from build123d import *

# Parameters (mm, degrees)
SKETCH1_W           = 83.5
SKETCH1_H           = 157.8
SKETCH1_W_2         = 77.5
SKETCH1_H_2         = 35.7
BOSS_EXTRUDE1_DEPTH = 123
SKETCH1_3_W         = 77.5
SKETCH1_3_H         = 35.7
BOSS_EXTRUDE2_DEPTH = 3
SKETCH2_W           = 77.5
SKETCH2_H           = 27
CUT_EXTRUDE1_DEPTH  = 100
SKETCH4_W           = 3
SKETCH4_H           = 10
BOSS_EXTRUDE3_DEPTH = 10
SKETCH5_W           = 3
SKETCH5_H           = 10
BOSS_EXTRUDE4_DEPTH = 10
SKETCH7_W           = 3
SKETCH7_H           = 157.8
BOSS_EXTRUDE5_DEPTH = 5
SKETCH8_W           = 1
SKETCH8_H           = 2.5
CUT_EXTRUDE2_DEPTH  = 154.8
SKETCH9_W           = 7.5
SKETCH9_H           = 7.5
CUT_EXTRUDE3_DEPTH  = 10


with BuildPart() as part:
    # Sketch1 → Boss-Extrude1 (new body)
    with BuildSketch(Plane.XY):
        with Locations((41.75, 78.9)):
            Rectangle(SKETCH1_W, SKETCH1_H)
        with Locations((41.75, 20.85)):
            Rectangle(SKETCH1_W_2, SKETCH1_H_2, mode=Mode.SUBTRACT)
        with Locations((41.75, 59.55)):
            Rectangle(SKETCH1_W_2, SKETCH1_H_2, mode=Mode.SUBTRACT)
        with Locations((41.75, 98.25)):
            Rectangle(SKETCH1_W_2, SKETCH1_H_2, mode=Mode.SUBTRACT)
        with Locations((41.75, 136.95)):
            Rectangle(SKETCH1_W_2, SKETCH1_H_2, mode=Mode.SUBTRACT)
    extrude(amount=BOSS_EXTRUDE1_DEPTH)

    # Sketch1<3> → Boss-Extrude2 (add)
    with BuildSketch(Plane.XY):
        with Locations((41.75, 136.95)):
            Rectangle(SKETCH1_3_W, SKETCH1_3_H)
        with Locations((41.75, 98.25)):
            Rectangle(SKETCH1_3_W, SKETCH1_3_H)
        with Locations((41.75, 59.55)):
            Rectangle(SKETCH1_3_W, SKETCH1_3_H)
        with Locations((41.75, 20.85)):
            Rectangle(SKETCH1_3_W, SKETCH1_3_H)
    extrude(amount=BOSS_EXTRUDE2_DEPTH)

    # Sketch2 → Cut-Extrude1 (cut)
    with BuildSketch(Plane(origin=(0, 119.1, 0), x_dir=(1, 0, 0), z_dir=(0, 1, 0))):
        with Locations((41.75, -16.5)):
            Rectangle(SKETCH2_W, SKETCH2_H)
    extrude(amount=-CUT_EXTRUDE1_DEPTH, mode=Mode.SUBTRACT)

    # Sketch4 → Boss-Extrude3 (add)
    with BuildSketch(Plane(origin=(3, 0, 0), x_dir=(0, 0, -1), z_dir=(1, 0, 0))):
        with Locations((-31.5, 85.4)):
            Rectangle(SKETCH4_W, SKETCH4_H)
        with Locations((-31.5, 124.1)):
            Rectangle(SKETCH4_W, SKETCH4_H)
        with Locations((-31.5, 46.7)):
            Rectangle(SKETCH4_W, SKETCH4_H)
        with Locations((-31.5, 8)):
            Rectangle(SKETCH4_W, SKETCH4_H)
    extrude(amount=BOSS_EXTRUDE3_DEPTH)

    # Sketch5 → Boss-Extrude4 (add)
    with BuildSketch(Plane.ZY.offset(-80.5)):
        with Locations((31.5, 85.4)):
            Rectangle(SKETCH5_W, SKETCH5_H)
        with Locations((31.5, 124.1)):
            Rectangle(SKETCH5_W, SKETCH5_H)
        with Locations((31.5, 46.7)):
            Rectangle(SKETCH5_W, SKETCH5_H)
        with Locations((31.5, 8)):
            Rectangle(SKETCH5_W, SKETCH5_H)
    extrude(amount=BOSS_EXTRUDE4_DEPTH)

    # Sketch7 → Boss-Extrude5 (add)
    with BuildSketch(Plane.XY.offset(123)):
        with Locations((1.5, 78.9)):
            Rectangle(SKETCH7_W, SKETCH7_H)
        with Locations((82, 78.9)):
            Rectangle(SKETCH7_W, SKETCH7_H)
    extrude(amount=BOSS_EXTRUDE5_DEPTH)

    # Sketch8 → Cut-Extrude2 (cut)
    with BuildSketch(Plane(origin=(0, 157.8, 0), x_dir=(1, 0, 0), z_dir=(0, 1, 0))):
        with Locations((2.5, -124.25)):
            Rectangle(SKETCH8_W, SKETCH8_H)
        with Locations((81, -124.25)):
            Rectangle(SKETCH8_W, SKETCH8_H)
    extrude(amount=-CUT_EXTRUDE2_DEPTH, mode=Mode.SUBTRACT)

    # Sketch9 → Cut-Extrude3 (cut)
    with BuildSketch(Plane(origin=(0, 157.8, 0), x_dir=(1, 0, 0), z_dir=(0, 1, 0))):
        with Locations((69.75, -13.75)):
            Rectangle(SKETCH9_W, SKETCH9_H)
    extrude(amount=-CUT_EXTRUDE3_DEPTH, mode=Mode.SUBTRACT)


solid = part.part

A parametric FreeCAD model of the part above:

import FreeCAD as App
import Part
import Sketcher
from FreeCAD import Vector
Q = App.Units.Quantity

doc = App.newDocument("Part")
body = doc.addObject("PartDesign::Body", "Body")

# Sketch on XY plane
sketch1 = doc.addObject("Sketcher::SketchObject", "Sketch")
body.addObject(sketch1)
sketch1.AttachmentSupport = (doc.XY_Plane, [""])
sketch1.MapMode = "FlatFace"
sketch1.addGeometry([
    Part.LineSegment(Vector(0, 158, 0), Vector(0, 0, 0)),  # 0
    Part.LineSegment(Vector(0, 0, 0), Vector(84, 0, 0)),  # 1
    Part.LineSegment(Vector(84, 0, 0), Vector(84, 158, 0)),  # 2
    Part.LineSegment(Vector(84, 158, 0), Vector(0, 158, 0)),  # 3
    Part.LineSegment(Vector(80, 3, 0), Vector(3, 3, 0)),  # 4
    Part.LineSegment(Vector(3, 3, 0), Vector(3, 39, 0)),  # 5
    Part.LineSegment(Vector(3, 39, 0), Vector(80, 39, 0)),  # 6
    Part.LineSegment(Vector(80, 39, 0), Vector(80, 3, 0)),  # 7
    Part.LineSegment(Vector(80, 42, 0), Vector(3, 42, 0)),  # 8
    Part.LineSegment(Vector(3, 42, 0), Vector(3, 77, 0)),  # 9
    Part.LineSegment(Vector(3, 77, 0), Vector(80, 77, 0)),  # 10
    Part.LineSegment(Vector(80, 77, 0), Vector(80, 42, 0)),  # 11
    Part.LineSegment(Vector(80, 80, 0), Vector(3, 80, 0)),  # 12
    Part.LineSegment(Vector(3, 80, 0), Vector(3, 116, 0)),  # 13
    Part.LineSegment(Vector(3, 116, 0), Vector(80, 116, 0)),  # 14
    Part.LineSegment(Vector(80, 116, 0), Vector(80, 80, 0)),  # 15
    Part.LineSegment(Vector(80, 119, 0), Vector(3, 119, 0)),  # 16
    Part.LineSegment(Vector(3, 119, 0), Vector(3, 155, 0)),  # 17
    Part.LineSegment(Vector(3, 155, 0), Vector(80, 155, 0)),  # 18
    Part.LineSegment(Vector(80, 155, 0), Vector(80, 119, 0)),  # 19
], False)
sketch1.addConstraint([
    Sketcher.Constraint("Coincident", 0, 2, 1, 1),
    Sketcher.Constraint("Coincident", 1, 2, 2, 1),
    Sketcher.Constraint("Coincident", 2, 2, 3, 1),
    Sketcher.Constraint("Coincident", 3, 2, 0, 1),
    Sketcher.Constraint("Coincident", 4, 2, 5, 1),
    Sketcher.Constraint("Coincident", 5, 2, 6, 1),
    Sketcher.Constraint("Coincident", 6, 2, 7, 1),
    Sketcher.Constraint("Coincident", 7, 2, 4, 1),
    Sketcher.Constraint("Coincident", 8, 2, 9, 1),
    Sketcher.Constraint("Coincident", 9, 2, 10, 1),
    Sketcher.Constraint("Coincident", 10, 2, 11, 1),
    Sketcher.Constraint("Coincident", 11, 2, 8, 1),
    Sketcher.Constraint("Coincident", 12, 2, 13, 1),
    Sketcher.Constraint("Coincident", 13, 2, 14, 1),
    Sketcher.Constraint("Coincident", 14, 2, 15, 1),
    Sketcher.Constraint("Coincident", 15, 2, 12, 1),
    Sketcher.Constraint("Coincident", 16, 2, 17, 1),
    Sketcher.Constraint("Coincident", 17, 2, 18, 1),
    Sketcher.Constraint("Coincident", 18, 2, 19, 1),
    Sketcher.Constraint("Coincident", 19, 2, 16, 1),
    Sketcher.Constraint("Vertical", 0),
    Sketcher.Constraint("Horizontal", 1),
    Sketcher.Constraint("Vertical", 2),
    Sketcher.Constraint("Horizontal", 3),
    Sketcher.Constraint("Horizontal", 4),
    Sketcher.Constraint("Vertical", 5),
    Sketcher.Constraint("Horizontal", 6),
    Sketcher.Constraint("Vertical", 7),
    Sketcher.Constraint("Horizontal", 8),
    Sketcher.Constraint("Vertical", 9),
    Sketcher.Constraint("Horizontal", 10),
    Sketcher.Constraint("Vertical", 11),
    Sketcher.Constraint("Horizontal", 12),
    Sketcher.Constraint("Vertical", 13),
    Sketcher.Constraint("Horizontal", 14),
    Sketcher.Constraint("Vertical", 15),
    Sketcher.Constraint("Horizontal", 16),
    Sketcher.Constraint("Vertical", 17),
    Sketcher.Constraint("Horizontal", 18),
    Sketcher.Constraint("Vertical", 19),
    Sketcher.Constraint("Coincident", 0, 2, -1, 1),
    Sketcher.Constraint("Vertical", 5, 2, 8, 2),
    Sketcher.Constraint("Vertical", 7, 2, 10, 2),
    Sketcher.Constraint("Vertical", 9, 2, 12, 2),
    Sketcher.Constraint("Vertical", 11, 2, 14, 2),
    Sketcher.Constraint("Vertical", 13, 2, 16, 2),
    Sketcher.Constraint("Vertical", 15, 2, 18, 2),
    Sketcher.Constraint("Equal", 7, 9),
    Sketcher.Constraint("Equal", 11, 13),
    Sketcher.Constraint("Equal", 15, 17),
    Sketcher.Constraint("DistanceX", 1, 1, 1, 2, Q("83.5 mm")),
    Sketcher.Constraint("DistanceX", 4, 2, 4, 1, Q("77.5 mm")),
    Sketcher.Constraint("DistanceY", 0, 2, 0, 1, Q("157.8 mm")),
    Sketcher.Constraint("DistanceY", 5, 1, 5, 2, Q("35.7 mm")),
    Sketcher.Constraint("DistanceX", -1, 1, 4, 2, Q("3 mm")),
    Sketcher.Constraint("DistanceY", -1, 1, 4, 2, Q("3 mm")),
    Sketcher.Constraint("DistanceY", 5, 2, 8, 2, Q("3 mm")),
    Sketcher.Constraint("DistanceY", 9, 2, 12, 2, Q("3 mm")),
    Sketcher.Constraint("DistanceY", 13, 2, 16, 2, Q("3 mm")),
])
pad1 = doc.addObject("PartDesign::Pad", "Pad")
body.addObject(pad1)
pad1.Profile = sketch1
pad1.Length = 123

# Sketch on XY plane
sketch2 = doc.addObject("Sketcher::SketchObject", "Sketch001")
body.addObject(sketch2)
sketch2.AttachmentSupport = (doc.XY_Plane, [""])
sketch2.MapMode = "FlatFace"
sketch2.addGeometry([
    Part.LineSegment(Vector(3, 155, 0), Vector(3, 119, 0)),  # 0
    Part.LineSegment(Vector(3, 119, 0), Vector(80, 119, 0)),  # 1
    Part.LineSegment(Vector(80, 119, 0), Vector(80, 155, 0)),  # 2
    Part.LineSegment(Vector(80, 155, 0), Vector(3, 155, 0)),  # 3
    Part.LineSegment(Vector(3, 116, 0), Vector(3, 80, 0)),  # 4
    Part.LineSegment(Vector(3, 80, 0), Vector(80, 80, 0)),  # 5
    Part.LineSegment(Vector(80, 80, 0), Vector(80, 116, 0)),  # 6
    Part.LineSegment(Vector(80, 116, 0), Vector(3, 116, 0)),  # 7
    Part.LineSegment(Vector(3, 77, 0), Vector(3, 42, 0)),  # 8
    Part.LineSegment(Vector(3, 42, 0), Vector(80, 42, 0)),  # 9
    Part.LineSegment(Vector(80, 42, 0), Vector(80, 77, 0)),  # 10
    Part.LineSegment(Vector(80, 77, 0), Vector(3, 77, 0)),  # 11
    Part.LineSegment(Vector(3, 39, 0), Vector(3, 3, 0)),  # 12
    Part.LineSegment(Vector(3, 3, 0), Vector(80, 3, 0)),  # 13
    Part.LineSegment(Vector(80, 3, 0), Vector(80, 39, 0)),  # 14
    Part.LineSegment(Vector(80, 39, 0), Vector(3, 39, 0)),  # 15
], False)
sketch2.addConstraint([
    Sketcher.Constraint("Coincident", 0, 2, 1, 1),
    Sketcher.Constraint("Coincident", 1, 2, 2, 1),
    Sketcher.Constraint("Coincident", 2, 2, 3, 1),
    Sketcher.Constraint("Coincident", 3, 2, 0, 1),
    Sketcher.Constraint("Coincident", 4, 2, 5, 1),
    Sketcher.Constraint("Coincident", 5, 2, 6, 1),
    Sketcher.Constraint("Coincident", 6, 2, 7, 1),
    Sketcher.Constraint("Coincident", 7, 2, 4, 1),
    Sketcher.Constraint("Coincident", 8, 2, 9, 1),
    Sketcher.Constraint("Coincident", 9, 2, 10, 1),
    Sketcher.Constraint("Coincident", 10, 2, 11, 1),
    Sketcher.Constraint("Coincident", 11, 2, 8, 1),
    Sketcher.Constraint("Coincident", 12, 2, 13, 1),
    Sketcher.Constraint("Coincident", 13, 2, 14, 1),
    Sketcher.Constraint("Coincident", 14, 2, 15, 1),
    Sketcher.Constraint("Coincident", 15, 2, 12, 1),
    Sketcher.Constraint("Vertical", 0),
    Sketcher.Constraint("Horizontal", 1),
    Sketcher.Constraint("Vertical", 2),
    Sketcher.Constraint("Horizontal", 3),
    Sketcher.Constraint("Vertical", 4),
    Sketcher.Constraint("Horizontal", 5),
    Sketcher.Constraint("Vertical", 6),
    Sketcher.Constraint("Horizontal", 7),
    Sketcher.Constraint("Vertical", 8),
    Sketcher.Constraint("Horizontal", 9),
    Sketcher.Constraint("Vertical", 10),
    Sketcher.Constraint("Horizontal", 11),
    Sketcher.Constraint("Vertical", 12),
    Sketcher.Constraint("Horizontal", 13),
    Sketcher.Constraint("Vertical", 14),
    Sketcher.Constraint("Horizontal", 15),
    Sketcher.Constraint("Vertical", 3, 2, 4, 2),
    Sketcher.Constraint("Vertical", 2, 2, 5, 2),
    Sketcher.Constraint("Vertical", 7, 2, 8, 2),
    Sketcher.Constraint("Vertical", 6, 2, 9, 2),
    Sketcher.Constraint("Vertical", 11, 2, 12, 2),
    Sketcher.Constraint("Vertical", 10, 2, 13, 2),
    Sketcher.Constraint("Equal", 2, 4),
    Sketcher.Constraint("Equal", 6, 8),
    Sketcher.Constraint("Equal", 10, 12),
    Sketcher.Constraint("DistanceX", 1, 1, 1, 2, Q("77.5 mm")),
    Sketcher.Constraint("DistanceY", 0, 2, 0, 1, Q("35.7 mm")),
    Sketcher.Constraint("DistanceX", -1, 1, 0, 2, Q("3 mm")),
    Sketcher.Constraint("DistanceY", -1, 1, 12, 2, Q("3 mm")),
    Sketcher.Constraint("DistanceY", 6, 2, 1, 2, Q("3 mm")),
    Sketcher.Constraint("DistanceY", 10, 2, 5, 2, Q("3 mm")),
    Sketcher.Constraint("DistanceY", 14, 2, 9, 2, Q("3 mm")),
])
pad2 = doc.addObject("PartDesign::Pad", "Pad001")
body.addObject(pad2)
pad2.Profile = sketch2
pad2.Length = 3

# Sketch on XZ plane
sketch3 = doc.addObject("Sketcher::SketchObject", "Sketch002")
body.addObject(sketch3)
sketch3.AttachmentSupport = (doc.XZ_Plane, [""])
sketch3.MapMode = "FlatFace"
sketch3.AttachmentOffset = App.Placement(Vector(0, 0, -119.1), App.Rotation())
sketch3.addGeometry([
    Part.LineSegment(Vector(3, 3, 0), Vector(3, 30, 0)),
    Part.LineSegment(Vector(3, 30, 0), Vector(80, 30, 0)),
    Part.LineSegment(Vector(80, 30, 0), Vector(80, 3, 0)),
    Part.LineSegment(Vector(80, 3, 0), Vector(3, 3, 0)),
], False)
sketch3.addConstraint([
    Sketcher.Constraint("Coincident", 0, 2, 1, 1),
    Sketcher.Constraint("Coincident", 1, 2, 2, 1),
    Sketcher.Constraint("Coincident", 2, 2, 3, 1),
    Sketcher.Constraint("Coincident", 3, 2, 0, 1),
    Sketcher.Constraint("Vertical", 0),
    Sketcher.Constraint("Horizontal", 1),
    Sketcher.Constraint("Vertical", 2),
    Sketcher.Constraint("Horizontal", 3),
    Sketcher.Constraint("DistanceY", 0, 1, 0, 2, Q("27 mm")),
    Sketcher.Constraint("DistanceX", 1, 1, 1, 2, Q("77.5 mm")),
    Sketcher.Constraint("DistanceX", -1, 1, 0, 2, Q("3 mm")),
    Sketcher.Constraint("DistanceY", -1, 1, 0, 2, Q("30 mm")),
])
pocket1 = doc.addObject("PartDesign::Pocket", "Pocket")
body.addObject(pocket1)
pocket1.Profile = sketch3
pocket1.Length = 100
pocket1.Reversed = True

# Sketch on YZ plane
sketch4 = doc.addObject("Sketcher::SketchObject", "Sketch003")
body.addObject(sketch4)
sketch4.AttachmentSupport = (doc.YZ_Plane, [""])
sketch4.MapMode = "FlatFace"
sketch4.AttachmentOffset = App.Placement(Vector(0, 0, 3), App.Rotation())
sketch4.addGeometry([
    Part.LineSegment(Vector(90.4, 33, 0), Vector(80.4, 33, 0)),  # 0
    Part.LineSegment(Vector(80.4, 33, 0), Vector(80.4, 30, 0)),  # 1
    Part.LineSegment(Vector(80.4, 30, 0), Vector(90.4, 30, 0)),  # 2
    Part.LineSegment(Vector(90.4, 30, 0), Vector(90.4, 33, 0)),  # 3
    Part.LineSegment(Vector(129.1, 33, 0), Vector(119.1, 33, 0)),  # 4
    Part.LineSegment(Vector(119.1, 33, 0), Vector(119.1, 30, 0)),  # 5
    Part.LineSegment(Vector(119.1, 30, 0), Vector(129.1, 30, 0)),  # 6
    Part.LineSegment(Vector(129.1, 30, 0), Vector(129.1, 33, 0)),  # 7
    Part.LineSegment(Vector(51.7, 33, 0), Vector(41.7, 33, 0)),  # 8
    Part.LineSegment(Vector(41.7, 33, 0), Vector(41.7, 30, 0)),  # 9
    Part.LineSegment(Vector(41.7, 30, 0), Vector(51.7, 30, 0)),  # 10
    Part.LineSegment(Vector(51.7, 30, 0), Vector(51.7, 33, 0)),  # 11
    Part.LineSegment(Vector(13, 33, 0), Vector(3, 33, 0)),  # 12
    Part.LineSegment(Vector(3, 33, 0), Vector(3, 30, 0)),  # 13
    Part.LineSegment(Vector(3, 30, 0), Vector(13, 30, 0)),  # 14
    Part.LineSegment(Vector(13, 30, 0), Vector(13, 33, 0)),  # 15
], False)
sketch4.addConstraint([
    Sketcher.Constraint("Coincident", 0, 2, 1, 1),
    Sketcher.Constraint("Coincident", 1, 2, 2, 1),
    Sketcher.Constraint("Coincident", 2, 2, 3, 1),
    Sketcher.Constraint("Coincident", 3, 2, 0, 1),
    Sketcher.Constraint("Coincident", 4, 2, 5, 1),
    Sketcher.Constraint("Coincident", 5, 2, 6, 1),
    Sketcher.Constraint("Coincident", 6, 2, 7, 1),
    Sketcher.Constraint("Coincident", 7, 2, 4, 1),
    Sketcher.Constraint("Coincident", 8, 2, 9, 1),
    Sketcher.Constraint("Coincident", 9, 2, 10, 1),
    Sketcher.Constraint("Coincident", 10, 2, 11, 1),
    Sketcher.Constraint("Coincident", 11, 2, 8, 1),
    Sketcher.Constraint("Coincident", 12, 2, 13, 1),
    Sketcher.Constraint("Coincident", 13, 2, 14, 1),
    Sketcher.Constraint("Coincident", 14, 2, 15, 1),
    Sketcher.Constraint("Coincident", 15, 2, 12, 1),
    Sketcher.Constraint("Horizontal", 0),
    Sketcher.Constraint("Vertical", 1),
    Sketcher.Constraint("Horizontal", 2),
    Sketcher.Constraint("Vertical", 3),
    Sketcher.Constraint("Horizontal", 4),
    Sketcher.Constraint("Vertical", 5),
    Sketcher.Constraint("Horizontal", 6),
    Sketcher.Constraint("Vertical", 7),
    Sketcher.Constraint("Horizontal", 8),
    Sketcher.Constraint("Vertical", 9),
    Sketcher.Constraint("Horizontal", 10),
    Sketcher.Constraint("Vertical", 11),
    Sketcher.Constraint("Horizontal", 12),
    Sketcher.Constraint("Vertical", 13),
    Sketcher.Constraint("Horizontal", 14),
    Sketcher.Constraint("Vertical", 15),
    Sketcher.Constraint("Horizontal", 3, 2, 4, 2),
    Sketcher.Constraint("Horizontal", 2, 2, 5, 2),
    Sketcher.Constraint("Horizontal", 7, 2, 8, 2),
    Sketcher.Constraint("Horizontal", 6, 2, 9, 2),
    Sketcher.Constraint("Horizontal", 11, 2, 12, 2),
    Sketcher.Constraint("Horizontal", 10, 2, 13, 2),
    Sketcher.Constraint("Equal", 2, 4),
    Sketcher.Constraint("Equal", 6, 8),
    Sketcher.Constraint("Equal", 10, 12),
    Sketcher.Constraint("DistanceX", 0, 2, 0, 1, Q("10 mm")),
    Sketcher.Constraint("DistanceY", 1, 2, 1, 1, Q("3 mm")),
    Sketcher.Constraint("DistanceY", -1, 1, 0, 2, Q("33 mm")),
    Sketcher.Constraint("DistanceX", -1, 1, 12, 2, Q("3 mm")),
    Sketcher.Constraint("DistanceX", -1, 1, 0, 2, Q("80.4 mm")),
    Sketcher.Constraint("DistanceX", -1, 1, 4, 2, Q("119.1 mm")),
    Sketcher.Constraint("DistanceX", -1, 1, 8, 2, Q("41.7 mm")),
])
pad3 = doc.addObject("PartDesign::Pad", "Pad002")
body.addObject(pad3)
pad3.Profile = sketch4
pad3.Length = 10

# Sketch on YZ plane
sketch5 = doc.addObject("Sketcher::SketchObject", "Sketch004")
body.addObject(sketch5)
sketch5.AttachmentSupport = (doc.YZ_Plane, [""])
sketch5.MapMode = "FlatFace"
sketch5.AttachmentOffset = App.Placement(Vector(0, 0, 80.5), App.Rotation())
sketch5.addGeometry([
    Part.LineSegment(Vector(90.4, 30, 0), Vector(80.4, 30, 0)),  # 0
    Part.LineSegment(Vector(80.4, 30, 0), Vector(80.4, 33, 0)),  # 1
    Part.LineSegment(Vector(80.4, 33, 0), Vector(90.4, 33, 0)),  # 2
    Part.LineSegment(Vector(90.4, 33, 0), Vector(90.4, 30, 0)),  # 3
    Part.LineSegment(Vector(129.1, 30, 0), Vector(119.1, 30, 0)),  # 4
    Part.LineSegment(Vector(119.1, 30, 0), Vector(119.1, 33, 0)),  # 5
    Part.LineSegment(Vector(119.1, 33, 0), Vector(129.1, 33, 0)),  # 6
    Part.LineSegment(Vector(129.1, 33, 0), Vector(129.1, 30, 0)),  # 7
    Part.LineSegment(Vector(51.7, 30, 0), Vector(41.7, 30, 0)),  # 8
    Part.LineSegment(Vector(41.7, 30, 0), Vector(41.7, 33, 0)),  # 9
    Part.LineSegment(Vector(41.7, 33, 0), Vector(51.7, 33, 0)),  # 10
    Part.LineSegment(Vector(51.7, 33, 0), Vector(51.7, 30, 0)),  # 11
    Part.LineSegment(Vector(13, 30, 0), Vector(3, 30, 0)),  # 12
    Part.LineSegment(Vector(3, 30, 0), Vector(3, 33, 0)),  # 13
    Part.LineSegment(Vector(3, 33, 0), Vector(13, 33, 0)),  # 14
    Part.LineSegment(Vector(13, 33, 0), Vector(13, 30, 0)),  # 15
], False)
sketch5.addConstraint([
    Sketcher.Constraint("Coincident", 0, 2, 1, 1),
    Sketcher.Constraint("Coincident", 1, 2, 2, 1),
    Sketcher.Constraint("Coincident", 2, 2, 3, 1),
    Sketcher.Constraint("Coincident", 3, 2, 0, 1),
    Sketcher.Constraint("Coincident", 4, 2, 5, 1),
    Sketcher.Constraint("Coincident", 5, 2, 6, 1),
    Sketcher.Constraint("Coincident", 6, 2, 7, 1),
    Sketcher.Constraint("Coincident", 7, 2, 4, 1),
    Sketcher.Constraint("Coincident", 8, 2, 9, 1),
    Sketcher.Constraint("Coincident", 9, 2, 10, 1),
    Sketcher.Constraint("Coincident", 10, 2, 11, 1),
    Sketcher.Constraint("Coincident", 11, 2, 8, 1),
    Sketcher.Constraint("Coincident", 12, 2, 13, 1),
    Sketcher.Constraint("Coincident", 13, 2, 14, 1),
    Sketcher.Constraint("Coincident", 14, 2, 15, 1),
    Sketcher.Constraint("Coincident", 15, 2, 12, 1),
    Sketcher.Constraint("Horizontal", 0),
    Sketcher.Constraint("Vertical", 1),
    Sketcher.Constraint("Horizontal", 2),
    Sketcher.Constraint("Vertical", 3),
    Sketcher.Constraint("Horizontal", 4),
    Sketcher.Constraint("Vertical", 5),
    Sketcher.Constraint("Horizontal", 6),
    Sketcher.Constraint("Vertical", 7),
    Sketcher.Constraint("Horizontal", 8),
    Sketcher.Constraint("Vertical", 9),
    Sketcher.Constraint("Horizontal", 10),
    Sketcher.Constraint("Vertical", 11),
    Sketcher.Constraint("Horizontal", 12),
    Sketcher.Constraint("Vertical", 13),
    Sketcher.Constraint("Horizontal", 14),
    Sketcher.Constraint("Vertical", 15),
    Sketcher.Constraint("Horizontal", 3, 2, 4, 2),
    Sketcher.Constraint("Horizontal", 2, 2, 5, 2),
    Sketcher.Constraint("Horizontal", 7, 2, 8, 2),
    Sketcher.Constraint("Horizontal", 6, 2, 9, 2),
    Sketcher.Constraint("Horizontal", 11, 2, 12, 2),
    Sketcher.Constraint("Horizontal", 10, 2, 13, 2),
    Sketcher.Constraint("Equal", 2, 4),
    Sketcher.Constraint("Equal", 6, 8),
    Sketcher.Constraint("Equal", 10, 12),
    Sketcher.Constraint("DistanceX", 0, 2, 0, 1, Q("10 mm")),
    Sketcher.Constraint("DistanceY", 1, 1, 1, 2, Q("3 mm")),
    Sketcher.Constraint("DistanceY", -1, 1, 0, 2, Q("30 mm")),
    Sketcher.Constraint("DistanceX", -1, 1, 12, 2, Q("3 mm")),
    Sketcher.Constraint("DistanceX", -1, 1, 0, 2, Q("80.4 mm")),
    Sketcher.Constraint("DistanceX", -1, 1, 4, 2, Q("119.1 mm")),
    Sketcher.Constraint("DistanceX", -1, 1, 8, 2, Q("41.7 mm")),
])
pad4 = doc.addObject("PartDesign::Pad", "Pad003")
body.addObject(pad4)
pad4.Profile = sketch5
pad4.Length = 10
pad4.Reversed = True

# Sketch on XY plane
sketch6 = doc.addObject("Sketcher::SketchObject", "Sketch005")
body.addObject(sketch6)
sketch6.AttachmentSupport = (doc.XY_Plane, [""])
sketch6.MapMode = "FlatFace"
sketch6.AttachmentOffset = App.Placement(Vector(0, 0, 123), App.Rotation())
sketch6.addGeometry([
    Part.LineSegment(Vector(0, 157.8, 0), Vector(0, 0, 0)),  # 0
    Part.LineSegment(Vector(0, 0, 0), Vector(3, 0, 0)),  # 1
    Part.LineSegment(Vector(3, 0, 0), Vector(3, 157.8, 0)),  # 2
    Part.LineSegment(Vector(3, 157.8, 0), Vector(0, 157.8, 0)),  # 3
    Part.LineSegment(Vector(80.5, 157.8, 0), Vector(80.5, 0, 0)),  # 4
    Part.LineSegment(Vector(80.5, 0, 0), Vector(83.5, 0, 0)),  # 5
    Part.LineSegment(Vector(83.5, 0, 0), Vector(83.5, 157.8, 0)),  # 6
    Part.LineSegment(Vector(83.5, 157.8, 0), Vector(80.5, 157.8, 0)),  # 7
], False)
sketch6.addConstraint([
    Sketcher.Constraint("Coincident", 0, 2, 1, 1),
    Sketcher.Constraint("Coincident", 1, 2, 2, 1),
    Sketcher.Constraint("Coincident", 2, 2, 3, 1),
    Sketcher.Constraint("Coincident", 3, 2, 0, 1),
    Sketcher.Constraint("Coincident", 4, 2, 5, 1),
    Sketcher.Constraint("Coincident", 5, 2, 6, 1),
    Sketcher.Constraint("Coincident", 6, 2, 7, 1),
    Sketcher.Constraint("Coincident", 7, 2, 4, 1),
    Sketcher.Constraint("Vertical", 0),
    Sketcher.Constraint("Horizontal", 1),
    Sketcher.Constraint("Vertical", 2),
    Sketcher.Constraint("Horizontal", 3),
    Sketcher.Constraint("Vertical", 4),
    Sketcher.Constraint("Horizontal", 5),
    Sketcher.Constraint("Vertical", 6),
    Sketcher.Constraint("Horizontal", 7),
    Sketcher.Constraint("Coincident", 0, 2, -1, 1),
    Sketcher.Constraint("PointOnObject", 4, 2, -1),
    Sketcher.Constraint("Horizontal", 3, 2, 6, 2),
    Sketcher.Constraint("Equal", 3, 5),
    Sketcher.Constraint("DistanceX", 1, 1, 1, 2, Q("3 mm")),
    Sketcher.Constraint("DistanceY", 0, 2, 0, 1, Q("157.8 mm")),
    Sketcher.Constraint("DistanceX", -1, 1, 4, 2, Q("80.5 mm")),
])
pad5 = doc.addObject("PartDesign::Pad", "Pad004")
body.addObject(pad5)
pad5.Profile = sketch6
pad5.Length = 5

# Sketch on XZ plane
sketch7 = doc.addObject("Sketcher::SketchObject", "Sketch006")
body.addObject(sketch7)
sketch7.AttachmentSupport = (doc.XZ_Plane, [""])
sketch7.MapMode = "FlatFace"
sketch7.AttachmentOffset = App.Placement(Vector(0, 0, -157.8), App.Rotation())
sketch7.addGeometry([
    Part.LineSegment(Vector(2, 123, 0), Vector(2, 125.5, 0)),  # 0
    Part.LineSegment(Vector(2, 125.5, 0), Vector(3, 125.5, 0)),  # 1
    Part.LineSegment(Vector(3, 125.5, 0), Vector(3, 123, 0)),  # 2
    Part.LineSegment(Vector(3, 123, 0), Vector(2, 123, 0)),  # 3
    Part.LineSegment(Vector(80.5, 123, 0), Vector(80.5, 125.5, 0)),  # 4
    Part.LineSegment(Vector(80.5, 125.5, 0), Vector(81.5, 125.5, 0)),  # 5
    Part.LineSegment(Vector(81.5, 125.5, 0), Vector(81.5, 123, 0)),  # 6
    Part.LineSegment(Vector(81.5, 123, 0), Vector(80.5, 123, 0)),  # 7
], False)
sketch7.addConstraint([
    Sketcher.Constraint("Coincident", 0, 2, 1, 1),
    Sketcher.Constraint("Coincident", 1, 2, 2, 1),
    Sketcher.Constraint("Coincident", 2, 2, 3, 1),
    Sketcher.Constraint("Coincident", 3, 2, 0, 1),
    Sketcher.Constraint("Coincident", 4, 2, 5, 1),
    Sketcher.Constraint("Coincident", 5, 2, 6, 1),
    Sketcher.Constraint("Coincident", 6, 2, 7, 1),
    Sketcher.Constraint("Coincident", 7, 2, 4, 1),
    Sketcher.Constraint("Vertical", 0),
    Sketcher.Constraint("Horizontal", 1),
    Sketcher.Constraint("Vertical", 2),
    Sketcher.Constraint("Horizontal", 3),
    Sketcher.Constraint("Vertical", 4),
    Sketcher.Constraint("Horizontal", 5),
    Sketcher.Constraint("Vertical", 6),
    Sketcher.Constraint("Horizontal", 7),
    Sketcher.Constraint("Horizontal", 1, 2, 4, 2),
    Sketcher.Constraint("Horizontal", 3, 2, 6, 2),
    Sketcher.Constraint("Equal", 3, 5),
    Sketcher.Constraint("DistanceX", 1, 1, 1, 2, Q("1 mm")),
    Sketcher.Constraint("DistanceY", 0, 1, 0, 2, Q("2.5 mm")),
    Sketcher.Constraint("DistanceX", -1, 1, 0, 2, Q("2 mm")),
    Sketcher.Constraint("DistanceY", -1, 1, 2, 2, Q("123 mm")),
    Sketcher.Constraint("DistanceX", -1, 1, 4, 2, Q("80.5 mm")),
])
pocket2 = doc.addObject("PartDesign::Pocket", "Pocket001")
body.addObject(pocket2)
pocket2.Profile = sketch7
pocket2.Length = 154.8
pocket2.Reversed = True

# Sketch on XZ plane
sketch8 = doc.addObject("Sketcher::SketchObject", "Sketch007")
body.addObject(sketch8)
sketch8.AttachmentSupport = (doc.XZ_Plane, [""])
sketch8.MapMode = "FlatFace"
sketch8.AttachmentOffset = App.Placement(Vector(0, 0, -157.8), App.Rotation())
sketch8.addGeometry([
    Part.LineSegment(Vector(66, 10, 0), Vector(66, 18, 0)),
    Part.LineSegment(Vector(66, 18, 0), Vector(74, 18, 0)),
    Part.LineSegment(Vector(74, 18, 0), Vector(74, 10, 0)),
    Part.LineSegment(Vector(74, 10, 0), Vector(66, 10, 0)),
], False)
sketch8.addConstraint([
    Sketcher.Constraint("Coincident", 0, 2, 1, 1),
    Sketcher.Constraint("Coincident", 1, 2, 2, 1),
    Sketcher.Constraint("Coincident", 2, 2, 3, 1),
    Sketcher.Constraint("Coincident", 3, 2, 0, 1),
    Sketcher.Constraint("Vertical", 0),
    Sketcher.Constraint("Horizontal", 1),
    Sketcher.Constraint("Vertical", 2),
    Sketcher.Constraint("Horizontal", 3),
    Sketcher.Constraint("Equal", 3, 0),
    Sketcher.Constraint("DistanceX", 1, 1, 1, 2, Q("7.5 mm")),
    Sketcher.Constraint("DistanceX", -1, 1, 0, 2, Q("66 mm")),
    Sketcher.Constraint("DistanceY", -1, 1, 2, 2, Q("10 mm")),
])
pocket3 = doc.addObject("PartDesign::Pocket", "Pocket002")
body.addObject(pocket3)
pocket3.Profile = sketch8
pocket3.Length = 10
pocket3.Reversed = True

doc.recompute()
